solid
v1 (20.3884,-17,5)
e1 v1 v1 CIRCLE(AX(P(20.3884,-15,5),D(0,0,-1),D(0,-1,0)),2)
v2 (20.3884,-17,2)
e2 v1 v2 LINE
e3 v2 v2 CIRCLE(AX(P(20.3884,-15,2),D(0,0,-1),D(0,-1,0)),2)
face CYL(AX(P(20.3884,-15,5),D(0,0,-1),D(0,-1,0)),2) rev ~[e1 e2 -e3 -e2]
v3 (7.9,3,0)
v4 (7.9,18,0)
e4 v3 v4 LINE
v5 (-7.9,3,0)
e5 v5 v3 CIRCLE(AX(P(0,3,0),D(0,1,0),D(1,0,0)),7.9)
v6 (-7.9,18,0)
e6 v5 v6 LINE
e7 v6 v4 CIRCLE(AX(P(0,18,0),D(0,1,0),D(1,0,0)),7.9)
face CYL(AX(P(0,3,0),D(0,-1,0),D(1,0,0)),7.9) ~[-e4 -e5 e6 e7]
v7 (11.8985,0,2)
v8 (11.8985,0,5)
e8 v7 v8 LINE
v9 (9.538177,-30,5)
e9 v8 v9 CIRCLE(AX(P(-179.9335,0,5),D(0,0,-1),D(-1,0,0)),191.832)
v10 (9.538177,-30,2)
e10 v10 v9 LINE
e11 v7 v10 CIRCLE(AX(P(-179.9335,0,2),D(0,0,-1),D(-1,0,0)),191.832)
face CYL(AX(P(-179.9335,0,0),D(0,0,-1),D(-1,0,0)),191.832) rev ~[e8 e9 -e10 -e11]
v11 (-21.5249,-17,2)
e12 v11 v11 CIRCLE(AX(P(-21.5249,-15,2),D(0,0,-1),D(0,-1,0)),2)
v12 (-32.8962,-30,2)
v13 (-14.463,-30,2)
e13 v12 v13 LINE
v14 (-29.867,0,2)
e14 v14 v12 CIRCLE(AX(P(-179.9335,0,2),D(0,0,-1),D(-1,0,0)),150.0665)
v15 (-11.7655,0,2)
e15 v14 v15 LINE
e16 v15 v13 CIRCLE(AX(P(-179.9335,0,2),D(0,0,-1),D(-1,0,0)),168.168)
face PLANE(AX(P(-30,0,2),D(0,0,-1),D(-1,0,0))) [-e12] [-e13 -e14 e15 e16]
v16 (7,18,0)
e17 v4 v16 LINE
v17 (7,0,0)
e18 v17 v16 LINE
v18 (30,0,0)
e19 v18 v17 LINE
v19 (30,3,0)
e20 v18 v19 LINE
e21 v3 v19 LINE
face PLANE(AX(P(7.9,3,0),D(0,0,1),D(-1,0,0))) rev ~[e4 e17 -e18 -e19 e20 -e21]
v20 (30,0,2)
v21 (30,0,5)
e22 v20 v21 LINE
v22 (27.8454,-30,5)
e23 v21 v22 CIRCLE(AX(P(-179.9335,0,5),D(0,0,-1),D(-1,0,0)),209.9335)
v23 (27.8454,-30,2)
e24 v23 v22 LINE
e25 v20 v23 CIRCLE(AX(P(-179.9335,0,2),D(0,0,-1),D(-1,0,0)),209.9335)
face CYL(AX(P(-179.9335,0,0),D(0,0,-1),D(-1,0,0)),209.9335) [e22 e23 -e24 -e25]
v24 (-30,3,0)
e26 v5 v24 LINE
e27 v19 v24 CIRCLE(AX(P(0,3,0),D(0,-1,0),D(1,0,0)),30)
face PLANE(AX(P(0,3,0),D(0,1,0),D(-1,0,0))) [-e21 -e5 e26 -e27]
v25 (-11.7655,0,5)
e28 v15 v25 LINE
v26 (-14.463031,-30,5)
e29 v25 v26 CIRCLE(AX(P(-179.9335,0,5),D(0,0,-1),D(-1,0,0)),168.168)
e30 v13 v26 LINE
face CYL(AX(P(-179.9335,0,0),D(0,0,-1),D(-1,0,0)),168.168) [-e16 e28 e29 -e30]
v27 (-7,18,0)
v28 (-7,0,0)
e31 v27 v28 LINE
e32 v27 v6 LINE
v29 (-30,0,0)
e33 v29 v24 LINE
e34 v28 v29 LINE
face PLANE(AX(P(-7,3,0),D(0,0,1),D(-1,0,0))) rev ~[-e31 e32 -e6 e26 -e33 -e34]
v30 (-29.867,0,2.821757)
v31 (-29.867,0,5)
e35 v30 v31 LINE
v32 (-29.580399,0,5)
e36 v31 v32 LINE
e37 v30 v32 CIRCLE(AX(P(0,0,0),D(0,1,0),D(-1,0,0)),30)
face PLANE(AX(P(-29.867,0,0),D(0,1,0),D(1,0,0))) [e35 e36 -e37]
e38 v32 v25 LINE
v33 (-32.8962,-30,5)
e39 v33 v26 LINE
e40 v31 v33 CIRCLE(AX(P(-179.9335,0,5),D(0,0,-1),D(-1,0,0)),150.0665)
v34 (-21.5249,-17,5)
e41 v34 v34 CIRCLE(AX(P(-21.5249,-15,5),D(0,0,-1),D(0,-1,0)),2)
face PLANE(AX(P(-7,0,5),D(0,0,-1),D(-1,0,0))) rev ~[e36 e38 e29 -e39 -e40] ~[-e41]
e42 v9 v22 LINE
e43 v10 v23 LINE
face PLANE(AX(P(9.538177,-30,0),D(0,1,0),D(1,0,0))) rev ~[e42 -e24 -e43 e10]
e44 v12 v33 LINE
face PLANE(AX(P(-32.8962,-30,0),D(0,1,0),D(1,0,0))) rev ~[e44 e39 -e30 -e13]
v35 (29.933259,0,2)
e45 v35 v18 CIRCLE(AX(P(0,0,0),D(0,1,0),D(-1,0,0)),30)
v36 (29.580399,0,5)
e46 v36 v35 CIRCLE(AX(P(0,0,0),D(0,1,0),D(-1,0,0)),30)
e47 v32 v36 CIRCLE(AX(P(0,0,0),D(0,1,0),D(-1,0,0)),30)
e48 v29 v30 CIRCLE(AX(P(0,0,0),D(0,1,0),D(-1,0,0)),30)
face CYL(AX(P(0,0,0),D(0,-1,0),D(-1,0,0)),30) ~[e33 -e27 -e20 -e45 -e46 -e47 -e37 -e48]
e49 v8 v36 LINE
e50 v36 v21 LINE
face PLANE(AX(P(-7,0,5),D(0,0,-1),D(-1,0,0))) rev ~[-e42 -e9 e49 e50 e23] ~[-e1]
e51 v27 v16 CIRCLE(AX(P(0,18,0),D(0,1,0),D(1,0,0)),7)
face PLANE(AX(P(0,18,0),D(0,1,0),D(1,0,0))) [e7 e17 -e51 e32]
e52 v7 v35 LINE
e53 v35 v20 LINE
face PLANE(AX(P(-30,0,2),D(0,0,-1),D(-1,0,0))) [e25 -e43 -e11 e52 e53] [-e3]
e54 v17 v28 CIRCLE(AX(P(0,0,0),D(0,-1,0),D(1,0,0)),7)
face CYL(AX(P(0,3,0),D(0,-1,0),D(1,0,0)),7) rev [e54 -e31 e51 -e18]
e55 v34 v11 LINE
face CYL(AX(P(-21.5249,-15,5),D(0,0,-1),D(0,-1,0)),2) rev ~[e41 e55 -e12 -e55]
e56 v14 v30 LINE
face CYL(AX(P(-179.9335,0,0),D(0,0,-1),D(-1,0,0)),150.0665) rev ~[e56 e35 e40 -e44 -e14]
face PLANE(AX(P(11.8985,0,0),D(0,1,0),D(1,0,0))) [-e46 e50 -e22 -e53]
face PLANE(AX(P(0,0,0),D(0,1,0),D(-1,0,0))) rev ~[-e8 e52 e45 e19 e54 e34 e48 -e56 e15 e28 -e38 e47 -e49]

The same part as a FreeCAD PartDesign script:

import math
import FreeCAD as App
import Part
import Sketcher
from FreeCAD import Vector

doc = App.newDocument("Part")
body = doc.addObject("PartDesign::Body", "Body")

sketch1 = body.newObject("Sketcher::SketchObject", "Sketch")
sketch1.AttachmentSupport = (doc.getObject("XZ_Plane"), [""])
sketch1.MapMode = "FlatFace"
sketch1.addGeometry(Part.LineSegment(Vector(-7, 0, 0), Vector(-30, 0, 0)), False)
sketch1.addGeometry(Part.ArcOfCircle(Part.Circle(Vector(0, 0, 0), Vector(0, 0, 1), 30), math.radians(0), math.radians(180)), False)
sketch1.addGeometry(Part.LineSegment(Vector(30, 0, 0), Vector(7, 0, 0)), False)
sketch1.addGeometry(Part.ArcOfCircle(Part.Circle(Vector(0, 0, 0), Vector(0, 0, 1), 7), math.radians(0), math.radians(180)), False)
sketch1.addConstraint(Sketcher.Constraint("Coincident", 0, 2, 1, 2))
sketch1.addConstraint(Sketcher.Constraint("Coincident", 1, 1, 2, 1))
sketch1.addConstraint(Sketcher.Constraint("Coincident", 2, 2, 3, 1))
sketch1.addConstraint(Sketcher.Constraint("Coincident", 3, 2, 0, 1))
sketch1.addConstraint(Sketcher.Constraint("Horizontal", 0))
sketch1.addConstraint(Sketcher.Constraint("Horizontal", 2))
sketch1.addConstraint(Sketcher.Constraint("Coincident", 1, 3, -1, 1))
sketch1.addConstraint(Sketcher.Constraint("Coincident", 3, 3, -1, 1))
sketch1.addConstraint(Sketcher.Constraint("PointOnObject", 0, 2, -1))
sketch1.addConstraint(Sketcher.Constraint("PointOnObject", 1, 1, -1))
sketch1.addConstraint(Sketcher.Constraint("Radius", 1, 30.0))
sketch1.addConstraint(Sketcher.Constraint("Radius", 3, 7.0))
pad1 = body.newObject("PartDesign::Pad", "Pad")
pad1.Profile = sketch1
pad1.Length = 3
pad1.Reversed = True

sketch2 = body.newObject("Sketcher::SketchObject", "Sketch001")
sketch2.AttachmentSupport = (doc.getObject("XZ_Plane"), [""])
sketch2.MapMode = "FlatFace"
sketch2.AttachmentOffset = App.Placement(Vector(0, 0, -3), App.Rotation())
sketch2.addGeometry(Part.ArcOfCircle(Part.Circle(Vector(0, 0, 0), Vector(0, 0, 1), 7.9), math.radians(0), math.radians(180)), False)
sketch2.addGeometry(Part.LineSegment(Vector(7.9, 0, 0), Vector(7, 0, 0)), False)
sketch2.addGeometry(Part.ArcOfCircle(Part.Circle(Vector(0, 0, 0), Vector(0, 0, 1), 7), math.radians(0), math.radians(180)), False)
sketch2.addGeometry(Part.LineSegment(Vector(-7, 0, 0), Vector(-7.9, 0, 0)), False)
sketch2.addConstraint(Sketcher.Constraint("Coincident", 0, 1, 1, 1))
sketch2.addConstraint(Sketcher.Constraint("Coincident", 1, 2, 2, 1))
sketch2.addConstraint(Sketcher.Constraint("Coincident", 2, 2, 3, 1))
sketch2.addConstraint(Sketcher.Constraint("Coincident", 3, 2, 0, 2))
sketch2.addConstraint(Sketcher.Constraint("Horizontal", 1))
sketch2.addConstraint(Sketcher.Constraint("Horizontal", 3))
sketch2.addConstraint(Sketcher.Constraint("Coincident", 0, 3, -1, 1))
sketch2.addConstraint(Sketcher.Constraint("Coincident", 2, 3, -1, 1))
sketch2.addConstraint(Sketcher.Constraint("PointOnObject", 0, 1, -1))
sketch2.addConstraint(Sketcher.Constraint("PointOnObject", 2, 2, -1))
sketch2.addConstraint(Sketcher.Constraint("Radius", 0, 7.9))
sketch2.addConstraint(Sketcher.Constraint("Radius", 2, 7.0))
pad2 = body.newObject("PartDesign::Pad", "Pad001")
pad2.Profile = sketch2
pad2.Length = 15
pad2.Reversed = True

sketch3 = body.newObject("Sketcher::SketchObject", "Sketch002")
sketch3.AttachmentSupport = (doc.getObject("XY_Plane"), [""])
sketch3.MapMode = "FlatFace"
sketch3.addGeometry(Part.LineSegment(Vector(12, 0, 0), Vector(30, 0, 0)), False)
sketch3.addGeometry(Part.ArcOfCircle(Part.Circle(Vector(-180, 0, 0), Vector(0, 0, 1), 210), math.radians(-8.22), math.radians(0)), False)
sketch3.addGeometry(Part.LineSegment(Vector(28, -30, 0), Vector(10, -30, 0)), False)
sketch3.addGeometry(Part.ArcOfCircle(Part.Circle(Vector(-180, 0, 0), Vector(0, 0, 1), 192), math.radians(-9), math.radians(0)), False)
sketch3.addGeometry(Part.LineSegment(Vector(-30, 0, 0), Vector(-12, 0, 0)), False)
sketch3.addGeometry(Part.ArcOfCircle(Part.Circle(Vector(-180, 0, 0), Vector(0, 0, 1), 168), math.radians(-10.28), math.radians(0)), False)
sketch3.addGeometry(Part.LineSegment(Vector(-14, -30, 0), Vector(-33, -30, 0)), False)
sketch3.addGeometry(Part.ArcOfCircle(Part.Circle(Vector(-180, 0, 0), Vector(0, 0, 1), 150), math.radians(-11.53), math.radians(0)), False)
sketch3.addConstraint(Sketcher.Constraint("Coincident", 0, 2, 1, 2))
sketch3.addConstraint(Sketcher.Constraint("Coincident", 1, 1, 2, 1))
sketch3.addConstraint(Sketcher.Constraint("Coincident", 2, 2, 3, 1))
sketch3.addConstraint(Sketcher.Constraint("Coincident", 3, 2, 0, 1))
sketch3.addConstraint(Sketcher.Constraint("Coincident", 4, 2, 5, 2))
sketch3.addConstraint(Sketcher.Constraint("Coincident", 5, 1, 6, 1))
sketch3.addConstraint(Sketcher.Constraint("Coincident", 6, 2, 7, 1))
sketch3.addConstraint(Sketcher.Constraint("Coincident", 7, 2, 4, 1))
sketch3.addConstraint(Sketcher.Constraint("Horizontal", 0))
sketch3.addConstraint(Sketcher.Constraint("Horizontal", 2))
sketch3.addConstraint(Sketcher.Constraint("Horizontal", 4))
sketch3.addConstraint(Sketcher.Constraint("Horizontal", 6))
sketch3.addConstraint(Sketcher.Constraint("Coincident", 3, 3, 1, 3))
sketch3.addConstraint(Sketcher.Constraint("Coincident", 5, 3, 1, 3))
sketch3.addConstraint(Sketcher.Constraint("Coincident", 7, 3, 1, 3))
sketch3.addConstraint(Sketcher.Constraint("PointOnObject", 1, 3, -1))
sketch3.addConstraint(Sketcher.Constraint("PointOnObject", 0, 2, -1))
sketch3.addConstraint(Sketcher.Constraint("PointOnObject", 4, 2, -1))
sketch3.addConstraint(Sketcher.Constraint("Horizontal", 2, 2, 5, 1))
sketch3.addConstraint(Sketcher.Constraint("Equal", 0, 4))
sketch3.addConstraint(Sketcher.Constraint("DistanceX", -1, 1, 0, 2, 30.0))
sketch3.addConstraint(Sketcher.Constraint("DistanceY", 1, 1, -1, 1, 30.0))
sketch3.addConstraint(Sketcher.Constraint("Radius", 3, 191.832))
sketch3.addConstraint(Sketcher.Constraint("Radius", 5, 168.168))
sketch3.addConstraint(Sketcher.Constraint("Radius", 1, 209.9335))
pad3 = body.newObject("PartDesign::Pad", "Pad002")
pad3.Profile = sketch3
pad3.Length = 5

sketch4 = body.newObject("Sketcher::SketchObject", "Sketch003")
sketch4.AttachmentSupport = (doc.getObject("XY_Plane"), [""])
sketch4.MapMode = "FlatFace"
sketch4.addGeometry(Part.LineSegment(Vector(12, 0, 0), Vector(30, 0, 0)), False)
sketch4.addGeometry(Part.ArcOfCircle(Part.Circle(Vector(-180, 0, 0), Vector(0, 0, 1), 210), math.radians(-8.22), math.radians(0)), False)
sketch4.addGeometry(Part.LineSegment(Vector(28, -30, 0), Vector(10, -30, 0)), False)
sketch4.addGeometry(Part.ArcOfCircle(Part.Circle(Vector(-180, 0, 0), Vector(0, 0, 1), 192), math.radians(-9), math.radians(0)), False)
sketch4.addGeometry(Part.ArcOfCircle(Part.Circle(Vector(-180, 0, 0), Vector(0, 0, 1), 168), math.radians(-10.28), math.radians(0)), False)
sketch4.addGeometry(Part.LineSegment(Vector(-14, -30, 0), Vector(-33, -30, 0)), False)
sketch4.addGeometry(Part.ArcOfCircle(Part.Circle(Vector(-180, 0, 0), Vector(0, 0, 1), 150), math.radians(-11.53), math.radians(0)), False)
sketch4.addGeometry(Part.LineSegment(Vector(-30, 0, 0), Vector(-12, 0, 0)), False)
sketch4.addConstraint(Sketcher.Constraint("Coincident", 0, 2, 1, 2))
sketch4.addConstraint(Sketcher.Constraint("Coincident", 1, 1, 2, 1))
sketch4.addConstraint(Sketcher.Constraint("Coincident", 2, 2, 3, 1))
sketch4.addConstraint(Sketcher.Constraint("Coincident", 3, 2, 0, 1))
sketch4.addConstraint(Sketcher.Constraint("Coincident", 4, 1, 5, 1))
sketch4.addConstraint(Sketcher.Constraint("Coincident", 5, 2, 6, 1))
sketch4.addConstraint(Sketcher.Constraint("Coincident", 6, 2, 7, 1))
sketch4.addConstraint(Sketcher.Constraint("Coincident", 7, 2, 4, 2))
sketch4.addConstraint(Sketcher.Constraint("Horizontal", 0))
sketch4.addConstraint(Sketcher.Constraint("Horizontal", 2))
sketch4.addConstraint(Sketcher.Constraint("Horizontal", 5))
sketch4.addConstraint(Sketcher.Constraint("Horizontal", 7))
sketch4.addConstraint(Sketcher.Constraint("Coincident", 3, 3, 1, 3))
sketch4.addConstraint(Sketcher.Constraint("Coincident", 4, 3, 1, 3))
sketch4.addConstraint(Sketcher.Constraint("Coincident", 6, 3, 1, 3))
sketch4.addConstraint(Sketcher.Constraint("PointOnObject", 1, 3, -1))
sketch4.addConstraint(Sketcher.Constraint("PointOnObject", 0, 2, -1))
sketch4.addConstraint(Sketcher.Constraint("PointOnObject", 6, 2, -1))
sketch4.addConstraint(Sketcher.Constraint("Horizontal", 2, 2, 4, 1))
sketch4.addConstraint(Sketcher.Constraint("Equal", 0, 7))
sketch4.addConstraint(Sketcher.Constraint("Radius", 3, 191.832))
sketch4.addConstraint(Sketcher.Constraint("Radius", 4, 168.168))
sketch4.addConstraint(Sketcher.Constraint("Radius", 1, 209.9335))
sketch4.addConstraint(Sketcher.Constraint("DistanceX", -1, 1, 0, 2, 30.0))
sketch4.addConstraint(Sketcher.Constraint("DistanceY", 1, 1, -1, 1, 30.0))
pocket1 = body.newObject("PartDesign::Pocket", "Pocket")
pocket1.Profile = sketch4
pocket1.Length = 2
pocket1.Reversed = True

sketch5 = body.newObject("Sketcher::SketchObject", "Sketch004")
sketch5.AttachmentSupport = (doc.getObject("XY_Plane"), [""])
sketch5.MapMode = "FlatFace"
sketch5.AttachmentOffset = App.Placement(Vector(0, 0, 5), App.Rotation())
sketch5.addGeometry(Part.Circle(Vector(-21.5, -15, 0), Vector(0, 0, 1), 2), False)
sketch5.addGeometry(Part.Circle(Vector(20.4, -15, 0), Vector(0, 0, 1), 2), False)
sketch5.addConstraint(Sketcher.Constraint("Equal", 0, 1))
sketch5.addConstraint(Sketcher.Constraint("Horizontal", 0, 3, 1, 3))
sketch5.addConstraint(Sketcher.Constraint("Diameter", 0, 4.0))
sketch5.addConstraint(Sketcher.Constraint("DistanceY", 0, 3, -1, 1, 15.0))
sketch5.addConstraint(Sketcher.Constraint("DistanceX", 0, 3, -1, 1, 21.525))
sketch5.addConstraint(Sketcher.Constraint("DistanceX", -1, 1, 1, 3, 20.3884))
doc.recompute()
hole = body.newObject("PartDesign::Hole", "Hole")
hole.Profile = sketch5
hole.ThreadType = "None"
hole.Diameter = 4
hole.DepthType = "Dimension"
hole.Depth = 10
hole.DrillPoint = "Angled"
hole.DrillPointAngle = 118

doc.recompute()
